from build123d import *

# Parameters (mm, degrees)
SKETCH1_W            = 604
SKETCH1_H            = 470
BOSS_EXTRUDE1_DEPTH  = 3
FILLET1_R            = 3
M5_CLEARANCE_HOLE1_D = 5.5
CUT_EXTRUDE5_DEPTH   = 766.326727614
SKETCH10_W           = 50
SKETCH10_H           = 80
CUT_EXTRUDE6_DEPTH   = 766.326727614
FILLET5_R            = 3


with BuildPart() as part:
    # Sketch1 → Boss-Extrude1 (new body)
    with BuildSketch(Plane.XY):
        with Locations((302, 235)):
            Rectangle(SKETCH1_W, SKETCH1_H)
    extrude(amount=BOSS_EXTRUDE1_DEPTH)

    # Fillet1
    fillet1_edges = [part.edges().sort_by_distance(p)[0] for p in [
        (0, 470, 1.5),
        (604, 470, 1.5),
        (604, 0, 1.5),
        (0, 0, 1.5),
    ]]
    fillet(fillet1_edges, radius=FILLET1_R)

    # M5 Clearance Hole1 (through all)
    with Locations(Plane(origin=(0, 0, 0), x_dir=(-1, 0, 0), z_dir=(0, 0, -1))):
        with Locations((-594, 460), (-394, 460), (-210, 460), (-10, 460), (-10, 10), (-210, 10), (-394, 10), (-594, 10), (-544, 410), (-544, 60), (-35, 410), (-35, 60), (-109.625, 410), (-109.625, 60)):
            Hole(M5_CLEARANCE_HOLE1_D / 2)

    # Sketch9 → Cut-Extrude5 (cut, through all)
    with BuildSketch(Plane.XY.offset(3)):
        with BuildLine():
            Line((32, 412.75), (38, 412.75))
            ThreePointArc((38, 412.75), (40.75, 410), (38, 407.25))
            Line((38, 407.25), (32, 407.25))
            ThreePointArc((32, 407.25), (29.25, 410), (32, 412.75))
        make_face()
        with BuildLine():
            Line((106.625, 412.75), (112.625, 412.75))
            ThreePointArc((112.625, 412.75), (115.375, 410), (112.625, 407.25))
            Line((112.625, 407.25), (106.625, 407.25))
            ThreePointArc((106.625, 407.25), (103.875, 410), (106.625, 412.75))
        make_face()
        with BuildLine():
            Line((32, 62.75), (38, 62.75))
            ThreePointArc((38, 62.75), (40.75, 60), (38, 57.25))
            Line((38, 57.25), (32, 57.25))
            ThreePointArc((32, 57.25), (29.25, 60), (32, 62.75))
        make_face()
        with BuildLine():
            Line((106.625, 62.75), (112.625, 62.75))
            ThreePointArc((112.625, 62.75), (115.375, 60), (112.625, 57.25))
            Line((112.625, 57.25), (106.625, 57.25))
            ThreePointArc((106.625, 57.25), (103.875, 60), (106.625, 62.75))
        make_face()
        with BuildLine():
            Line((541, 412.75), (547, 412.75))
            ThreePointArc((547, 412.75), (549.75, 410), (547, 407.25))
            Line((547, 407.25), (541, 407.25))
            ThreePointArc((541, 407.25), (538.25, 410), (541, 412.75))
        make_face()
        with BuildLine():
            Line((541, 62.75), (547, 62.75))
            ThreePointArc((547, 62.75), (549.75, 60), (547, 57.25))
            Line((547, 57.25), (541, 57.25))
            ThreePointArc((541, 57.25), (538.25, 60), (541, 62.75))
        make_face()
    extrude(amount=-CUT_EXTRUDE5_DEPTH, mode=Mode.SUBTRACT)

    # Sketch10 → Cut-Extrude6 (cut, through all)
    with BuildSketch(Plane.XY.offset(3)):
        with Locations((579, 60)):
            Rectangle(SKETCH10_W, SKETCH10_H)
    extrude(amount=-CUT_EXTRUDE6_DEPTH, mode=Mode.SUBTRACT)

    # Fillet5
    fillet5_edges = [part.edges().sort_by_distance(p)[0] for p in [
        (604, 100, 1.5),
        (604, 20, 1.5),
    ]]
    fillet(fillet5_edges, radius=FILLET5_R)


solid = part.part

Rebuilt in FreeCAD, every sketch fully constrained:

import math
import FreeCAD as App
import Part
import Sketcher
from FreeCAD import Vector


def edges_at(feature, points):
    """Names of the edges that pass closest to the given points."""
    edges = feature.Shape.Edges
    near = lambda p: min(range(len(edges)), key=lambda i: edges[i].distToShape(Part.Vertex(*p))[0])
    return sorted({f"Edge{near(p) + 1}" for p in points})

doc = App.newDocument("Part")
body = doc.addObject("PartDesign::Body", "Body")

# Sketch on XY plane
sketch1 = body.newObject("Sketcher::SketchObject", "Sketch")
sketch1.AttachmentSupport = (doc.getObject("XY_Plane"), [""])
sketch1.MapMode = "FlatFace"
sketch1.addGeometry(Part.LineSegment(Vector(0, 470, 0), Vector(0, 0, 0)), False)
sketch1.addGeometry(Part.LineSegment(Vector(0, 0, 0), Vector(604, 0, 0)), False)
sketch1.addGeometry(Part.LineSegment(Vector(604, 0, 0), Vector(604, 470, 0)), False)
sketch1.addGeometry(Part.LineSegment(Vector(604, 470, 0), Vector(0, 470, 0)), False)
sketch1.addConstraint(Sketcher.Constraint("Coincident", 0, 2, 1, 1))
sketch1.addConstraint(Sketcher.Constraint("Coincident", 1, 2, 2, 1))
sketch1.addConstraint(Sketcher.Constraint("Coincident", 2, 2, 3, 1))
sketch1.addConstraint(Sketcher.Constraint("Coincident", 3, 2, 0, 1))
sketch1.addConstraint(Sketcher.Constraint("Vertical", 0))
sketch1.addConstraint(Sketcher.Constraint("Horizontal", 1))
sketch1.addConstraint(Sketcher.Constraint("Vertical", 2))
sketch1.addConstraint(Sketcher.Constraint("Horizontal", 3))
sketch1.addConstraint(Sketcher.Constraint("Coincident", 0, 2, -1, 1))
sketch1.addConstraint(Sketcher.Constraint("DistanceX", 1, 1, 1, 2, 604.0))
sketch1.addConstraint(Sketcher.Constraint("DistanceY", 0, 2, 0, 1, 470.0))
pad1 = body.newObject("PartDesign::Pad", "Pad")
pad1.Profile = sketch1
pad1.Length = 3
doc.recompute()

fillet = body.newObject("PartDesign::Fillet", "Fillet")
fillet.Base = (pad1, edges_at(pad1, [
    (0, 470, 1.5),
    (604, 470, 1.5),
    (604, 0, 1.5),
    (0, 0, 1.5),
]))
fillet.Radius = 3

# Sketch on XY plane
sketch2 = body.newObject("Sketcher::SketchObject", "Sketch001")
sketch2.AttachmentSupport = (doc.getObject("XY_Plane"), [""])
sketch2.MapMode = "FlatFace"
sketch2.addGeometry(Part.Circle(Vector(594, 460, 0), Vector(0, 0, 1), 2.75), False)
sketch2.addGeometry(Part.Circle(Vector(394, 460, 0), Vector(0, 0, 1), 2.75), False)
sketch2.addGeometry(Part.Circle(Vector(210, 460, 0), Vector(0, 0, 1), 2.75), False)
sketch2.addGeometry(Part.Circle(Vector(10, 460, 0), Vector(0, 0, 1), 2.75), False)
sketch2.addGeometry(Part.Circle(Vector(10, 10, 0), Vector(0, 0, 1), 2.75), False)
sketch2.addGeometry(Part.Circle(Vector(210, 10, 0), Vector(0, 0, 1), 2.75), False)
sketch2.addGeometry(Part.Circle(Vector(394, 10, 0), Vector(0, 0, 1), 2.75), False)
sketch2.addGeometry(Part.Circle(Vector(594, 10, 0), Vector(0, 0, 1), 2.75), False)
sketch2.addGeometry(Part.Circle(Vector(544, 410, 0), Vector(0, 0, 1), 2.75), False)
sketch2.addGeometry(Part.Circle(Vector(544, 60, 0), Vector(0, 0, 1), 2.75), False)
sketch2.addGeometry(Part.Circle(Vector(35, 410, 0), Vector(0, 0, 1), 2.75), False)
sketch2.addGeometry(Part.Circle(Vector(35, 60, 0), Vector(0, 0, 1), 2.75), False)
sketch2.addGeometry(Part.Circle(Vector(109.625, 410, 0), Vector(0, 0, 1), 2.75), False)
sketch2.addGeometry(Part.Circle(Vector(109.625, 60, 0), Vector(0, 0, 1), 2.75), False)
sketch2.addConstraint(Sketcher.Constraint("Equal", 0, 1))
sketch2.addConstraint(Sketcher.Constraint("Equal", 1, 2))
sketch2.addConstraint(Sketcher.Constraint("Equal", 2, 3))
sketch2.addConstraint(Sketcher.Constraint("Equal", 3, 4))
sketch2.addConstraint(Sketcher.Constraint("Equal", 4, 5))
sketch2.addConstraint(Sketcher.Constraint("Equal", 5, 6))
sketch2.addConstraint(Sketcher.Constraint("Equal", 6, 7))
sketch2.addConstraint(Sketcher.Constraint("Equal", 7, 8))
sketch2.addConstraint(Sketcher.Constraint("Equal", 8, 9))
sketch2.addConstraint(Sketcher.Constraint("Equal", 9, 10))
sketch2.addConstraint(Sketcher.Constraint("Equal", 10, 11))
sketch2.addConstraint(Sketcher.Constraint("Equal", 11, 12))
sketch2.addConstraint(Sketcher.Constraint("Equal", 12, 13))
sketch2.addConstraint(Sketcher.Constraint("Horizontal", 0, 3, 1, 3))
sketch2.addConstraint(Sketcher.Constraint("Horizontal", 1, 3, 2, 3))
sketch2.addConstraint(Sketcher.Constraint("Horizontal", 2, 3, 3, 3))
sketch2.addConstraint(Sketcher.Constraint("Horizontal", 4, 3, 5, 3))
sketch2.addConstraint(Sketcher.Constraint("Horizontal", 5, 3, 6, 3))
sketch2.addConstraint(Sketcher.Constraint("Horizontal", 6, 3, 7, 3))
sketch2.addConstraint(Sketcher.Constraint("Horizontal", 8, 3, 10, 3))
sketch2.addConstraint(Sketcher.Constraint("Horizontal", 9, 3, 11, 3))
sketch2.addConstraint(Sketcher.Constraint("Horizontal", 10, 3, 12, 3))
sketch2.addConstraint(Sketcher.Constraint("Horizontal", 11, 3, 13, 3))
sketch2.addConstraint(Sketcher.Constraint("Vertical", 3, 3, 4, 3))
sketch2.addConstraint(Sketcher.Constraint("Vertical", 2, 3, 5, 3))
sketch2.addConstraint(Sketcher.Constraint("Vertical", 1, 3, 6, 3))
sketch2.addConstraint(Sketcher.Constraint("Vertical", 0, 3, 7, 3))
sketch2.addConstraint(Sketcher.Constraint("Vertical", 8, 3, 9, 3))
sketch2.addConstraint(Sketcher.Constraint("Vertical", 10, 3, 11, 3))
sketch2.addConstraint(Sketcher.Constraint("Vertical", 12, 3, 13, 3))
sketch2.addConstraint(Sketcher.Constraint("Diameter", 0, 5.5))
sketch2.addConstraint(Sketcher.Constraint("DistanceX", -1, 1, 0, 3, 594.0))
sketch2.addConstraint(Sketcher.Constraint("DistanceY", -1, 1, 0, 3, 460.0))
sketch2.addConstraint(Sketcher.Constraint("DistanceX", -1, 1, 1, 3, 394.0))
sketch2.addConstraint(Sketcher.Constraint("DistanceX", -1, 1, 2, 3, 210.0))
sketch2.addConstraint(Sketcher.Constraint("DistanceX", -1, 1, 3, 3, 10.0))
sketch2.addConstraint(Sketcher.Constraint("DistanceY", -1, 1, 4, 3, 10.0))
sketch2.addConstraint(Sketcher.Constraint("DistanceX", -1, 1, 8, 3, 544.0))
sketch2.addConstraint(Sketcher.Constraint("DistanceY", -1, 1, 8, 3, 410.0))
sketch2.addConstraint(Sketcher.Constraint("DistanceY", -1, 1, 9, 3, 60.0))
sketch2.addConstraint(Sketcher.Constraint("DistanceX", -1, 1, 10, 3, 35.0))
sketch2.addConstraint(Sketcher.Constraint("DistanceX", -1, 1, 12, 3, 109.625))
doc.recompute()
hole = body.newObject("PartDesign::Hole", "Hole")
hole.Profile = sketch2
hole.ThreadType = "None"
hole.Diameter = 5.5
hole.DepthType = "ThroughAll"
hole.Reversed = True

# Sketch on XY plane
sketch3 = body.newObject("Sketcher::SketchObject", "Sketch002")
sketch3.AttachmentSupport = (doc.getObject("XY_Plane"), [""])
sketch3.MapMode = "FlatFace"
sketch3.AttachmentOffset = App.Placement(Vector(0, 0, 3), App.Rotation())
sketch3.addGeometry(Part.LineSegment(Vector(38, 412.75, 0), Vector(32, 412.75, 0)), False)
sketch3.addGeometry(Part.ArcOfCircle(Part.Circle(Vector(32, 410, 0), Vector(0, 0, 1), 2.75), math.radians(90), math.radians(270)), False)
sketch3.addGeometry(Part.LineSegment(Vector(32, 407.25, 0), Vector(38, 407.25, 0)), False)
sketch3.addGeometry(Part.ArcOfCircle(Part.Circle(Vector(38, 410, 0), Vector(0, 0, 1), 2.75), math.radians(-90), math.radians(90)), False)
sketch3.addGeometry(Part.LineSegment(Vector(112.625, 412.75, 0), Vector(106.625, 412.75, 0)), False)
sketch3.addGeometry(Part.ArcOfCircle(Part.Circle(Vector(106.625, 410, 0), Vector(0, 0, 1), 2.75), math.radians(90), math.radians(270)), False)
sketch3.addGeometry(Part.LineSegment(Vector(106.625, 407.25, 0), Vector(112.625, 407.25, 0)), False)
sketch3.addGeometry(Part.ArcOfCircle(Part.Circle(Vector(112.625, 410, 0), Vector(0, 0, 1), 2.75), math.radians(-90), math.radians(90)), False)
sketch3.addGeometry(Part.LineSegment(Vector(38, 62.75, 0), Vector(32, 62.75, 0)), False)
sketch3.addGeometry(Part.ArcOfCircle(Part.Circle(Vector(32, 60, 0), Vector(0, 0, 1), 2.75), math.radians(90), math.radians(270)), False)
sketch3.addGeometry(Part.LineSegment(Vector(32, 57.25, 0), Vector(38, 57.25, 0)), False)
sketch3.addGeometry(Part.ArcOfCircle(Part.Circle(Vector(38, 60, 0), Vector(0, 0, 1), 2.75), math.radians(-90), math.radians(90)), False)
sketch3.addGeometry(Part.LineSegment(Vector(112.625, 62.75, 0), Vector(106.625, 62.75, 0)), False)
sketch3.addGeometry(Part.ArcOfCircle(Part.Circle(Vector(106.625, 60, 0), Vector(0, 0, 1), 2.75), math.radians(90), math.radians(270)), False)
sketch3.addGeometry(Part.LineSegment(Vector(106.625, 57.25, 0), Vector(112.625, 57.25, 0)), False)
sketch3.addGeometry(Part.ArcOfCircle(Part.Circle(Vector(112.625, 60, 0), Vector(0, 0, 1), 2.75), math.radians(-90), math.radians(90)), False)
sketch3.addGeometry(Part.LineSegment(Vector(547, 412.75, 0), Vector(541, 412.75, 0)), False)
sketch3.addGeometry(Part.ArcOfCircle(Part.Circle(Vector(541, 410, 0), Vector(0, 0, 1), 2.75), math.radians(90), math.radians(270)), False)
sketch3.addGeometry(Part.LineSegment(Vector(541, 407.25, 0), Vector(547, 407.25, 0)), False)
sketch3.addGeometry(Part.ArcOfCircle(Part.Circle(Vector(547, 410, 0), Vector(0, 0, 1), 2.75), math.radians(-90), math.radians(90)), False)
sketch3.addGeometry(Part.LineSegment(Vector(547, 62.75, 0), Vector(541, 62.75, 0)), False)
sketch3.addGeometry(Part.ArcOfCircle(Part.Circle(Vector(541, 60, 0), Vector(0, 0, 1), 2.75), math.radians(90), math.radians(270)), False)
sketch3.addGeometry(Part.LineSegment(Vector(541, 57.25, 0), Vector(547, 57.25, 0)), False)
sketch3.addGeometry(Part.ArcOfCircle(Part.Circle(Vector(547, 60, 0), Vector(0, 0, 1), 2.75), math.radians(-90), math.radians(90)), False)
sketch3.addConstraint(Sketcher.Constraint("Tangent", 0, 2, 1, 1))
sketch3.addConstraint(Sketcher.Constraint("Tangent", 1, 2, 2, 1))
sketch3.addConstraint(Sketcher.Constraint("Tangent", 2, 2, 3, 1))
sketch3.addConstraint(Sketcher.Constraint("Tangent", 3, 2, 0, 1))
sketch3.addConstraint(Sketcher.Constraint("Tangent", 4, 2, 5, 1))
sketch3.addConstraint(Sketcher.Constraint("Tangent", 5, 2, 6, 1))
sketch3.addConstraint(Sketcher.Constraint("Tangent", 6, 2, 7, 1))
sketch3.addConstraint(Sketcher.Constraint("Tangent", 7, 2, 4, 1))
sketch3.addConstraint(Sketcher.Constraint("Tangent", 8, 2, 9, 1))
sketch3.addConstraint(Sketcher.Constraint("Tangent", 9, 2, 10, 1))
sketch3.addConstraint(Sketcher.Constraint("Tangent", 10, 2, 11, 1))
sketch3.addConstraint(Sketcher.Constraint("Tangent", 11, 2, 8, 1))
sketch3.addConstraint(Sketcher.Constraint("Tangent", 12, 2, 13, 1))
sketch3.addConstraint(Sketcher.Constraint("Tangent", 13, 2, 14, 1))
sketch3.addConstraint(Sketcher.Constraint("Tangent", 14, 2, 15, 1))
sketch3.addConstraint(Sketcher.Constraint("Tangent", 15, 2, 12, 1))
sketch3.addConstraint(Sketcher.Constraint("Tangent", 16, 2, 17, 1))
sketch3.addConstraint(Sketcher.Constraint("Tangent", 17, 2, 18, 1))
sketch3.addConstraint(Sketcher.Constraint("Tangent", 18, 2, 19, 1))
sketch3.addConstraint(Sketcher.Constraint("Tangent", 19, 2, 16, 1))
sketch3.addConstraint(Sketcher.Constraint("Tangent", 20, 2, 21, 1))
sketch3.addConstraint(Sketcher.Constraint("Tangent", 21, 2, 22, 1))
sketch3.addConstraint(Sketcher.Constraint("Tangent", 22, 2, 23, 1))
sketch3.addConstraint(Sketcher.Constraint("Tangent", 23, 2, 20, 1))
sketch3.addConstraint(Sketcher.Constraint("Horizontal", 0))
sketch3.addConstraint(Sketcher.Constraint("Horizontal", 2))
sketch3.addConstraint(Sketcher.Constraint("Horizontal", 4))
sketch3.addConstraint(Sketcher.Constraint("Horizontal", 6))
sketch3.addConstraint(Sketcher.Constraint("Horizontal", 8))
sketch3.addConstraint(Sketcher.Constraint("Horizontal", 10))
sketch3.addConstraint(Sketcher.Constraint("Horizontal", 12))
sketch3.addConstraint(Sketcher.Constraint("Horizontal", 14))
sketch3.addConstraint(Sketcher.Constraint("Horizontal", 16))
sketch3.addConstraint(Sketcher.Constraint("Horizontal", 18))
sketch3.addConstraint(Sketcher.Constraint("Horizontal", 20))
sketch3.addConstraint(Sketcher.Constraint("Horizontal", 22))
sketch3.addConstraint(Sketcher.Constraint("Equal", 3, 5))
sketch3.addConstraint(Sketcher.Constraint("Equal", 7, 9))
sketch3.addConstraint(Sketcher.Constraint("Equal", 11, 13))
sketch3.addConstraint(Sketcher.Constraint("Equal", 15, 17))
sketch3.addConstraint(Sketcher.Constraint("Equal", 19, 21))
sketch3.addConstraint(Sketcher.Constraint("Horizontal", 3, 3, 5, 3))
sketch3.addConstraint(Sketcher.Constraint("Horizontal", 11, 3, 13, 3))
sketch3.addConstraint(Sketcher.Constraint("Horizontal", 7, 3, 17, 3))
sketch3.addConstraint(Sketcher.Constraint("Horizontal", 15, 3, 21, 3))
sketch3.addConstraint(Sketcher.Constraint("Vertical", 1, 3, 9, 3))
sketch3.addConstraint(Sketcher.Constraint("Vertical", 3, 3, 11, 3))
sketch3.addConstraint(Sketcher.Constraint("Vertical", 5, 3, 13, 3))
sketch3.addConstraint(Sketcher.Constraint("Vertical", 7, 3, 15, 3))
sketch3.addConstraint(Sketcher.Constraint("Vertical", 17, 3, 21, 3))
sketch3.addConstraint(Sketcher.Constraint("Vertical", 19, 3, 23, 3))
sketch3.addConstraint(Sketcher.Constraint("Equal", 2, 4))
sketch3.addConstraint(Sketcher.Constraint("Equal", 14, 16))
sketch3.addConstraint(Sketcher.Constraint("DistanceX", 0, 2, 0, 1, 6.0))
sketch3.addConstraint(Sketcher.Constraint("Radius", 1, 2.75))
sketch3.addConstraint(Sketcher.Constraint("DistanceX", -1, 1, 1, 3, 32.0))
sketch3.addConstraint(Sketcher.Constraint("DistanceY", -1, 1, 1, 3, 410.0))
sketch3.addConstraint(Sketcher.Constraint("DistanceY", -1, 1, 9, 3, 60.0))
sketch3.addConstraint(Sketcher.Constraint("DistanceX", -1, 1, 17, 3, 541.0))
sketch3.addConstraint(Sketcher.Constraint("DistanceX", -1, 1, 5, 3, 106.625))
pocket1 = body.newObject("PartDesign::Pocket", "Pocket")
pocket1.Profile = sketch3
pocket1.Type = "ThroughAll"

# Sketch on XY plane
sketch4 = body.newObject("Sketcher::SketchObject", "Sketch003")
sketch4.AttachmentSupport = (doc.getObject("XY_Plane"), [""])
sketch4.MapMode = "FlatFace"
sketch4.AttachmentOffset = App.Placement(Vector(0, 0, 3), App.Rotation())
sketch4.addGeometry(Part.LineSegment(Vector(554, 100, 0), Vector(554, 20, 0)), False)
sketch4.addGeometry(Part.LineSegment(Vector(554, 20, 0), Vector(604, 20, 0)), False)
sketch4.addGeometry(Part.LineSegment(Vector(604, 20, 0), Vector(604, 100, 0)), False)
sketch4.addGeometry(Part.LineSegment(Vector(604, 100, 0), Vector(554, 100, 0)), False)
sketch4.addConstraint(Sketcher.Constraint("Coincident", 0, 2, 1, 1))
sketch4.addConstraint(Sketcher.Constraint("Coincident", 1, 2, 2, 1))
sketch4.addConstraint(Sketcher.Constraint("Coincident", 2, 2, 3, 1))
sketch4.addConstraint(Sketcher.Constraint("Coincident", 3, 2, 0, 1))
sketch4.addConstraint(Sketcher.Constraint("Vertical", 0))
sketch4.addConstraint(Sketcher.Constraint("Horizontal", 1))
sketch4.addConstraint(Sketcher.Constraint("Vertical", 2))
sketch4.addConstraint(Sketcher.Constraint("Horizontal", 3))
sketch4.addConstraint(Sketcher.Constraint("DistanceX", 1, 1, 1, 2, 50.0))
sketch4.addConstraint(Sketcher.Constraint("DistanceY", 0, 2, 0, 1, 80.0))
sketch4.addConstraint(Sketcher.Constraint("DistanceX", -1, 1, 0, 2, 554.0))
sketch4.addConstraint(Sketcher.Constraint("DistanceY", -1, 1, 0, 2, 20.0))
pocket2 = body.newObject("PartDesign::Pocket", "Pocket001")
pocket2.Profile = sketch4
pocket2.Type = "ThroughAll"
doc.recompute()

fillet2 = body.newObject("PartDesign::Fillet", "Fillet001")
fillet2.Base = (pocket2, edges_at(pocket2, [(604, 100, 1.5), (604, 20, 1.5)]))
fillet2.Radius = 3

doc.recompute()
